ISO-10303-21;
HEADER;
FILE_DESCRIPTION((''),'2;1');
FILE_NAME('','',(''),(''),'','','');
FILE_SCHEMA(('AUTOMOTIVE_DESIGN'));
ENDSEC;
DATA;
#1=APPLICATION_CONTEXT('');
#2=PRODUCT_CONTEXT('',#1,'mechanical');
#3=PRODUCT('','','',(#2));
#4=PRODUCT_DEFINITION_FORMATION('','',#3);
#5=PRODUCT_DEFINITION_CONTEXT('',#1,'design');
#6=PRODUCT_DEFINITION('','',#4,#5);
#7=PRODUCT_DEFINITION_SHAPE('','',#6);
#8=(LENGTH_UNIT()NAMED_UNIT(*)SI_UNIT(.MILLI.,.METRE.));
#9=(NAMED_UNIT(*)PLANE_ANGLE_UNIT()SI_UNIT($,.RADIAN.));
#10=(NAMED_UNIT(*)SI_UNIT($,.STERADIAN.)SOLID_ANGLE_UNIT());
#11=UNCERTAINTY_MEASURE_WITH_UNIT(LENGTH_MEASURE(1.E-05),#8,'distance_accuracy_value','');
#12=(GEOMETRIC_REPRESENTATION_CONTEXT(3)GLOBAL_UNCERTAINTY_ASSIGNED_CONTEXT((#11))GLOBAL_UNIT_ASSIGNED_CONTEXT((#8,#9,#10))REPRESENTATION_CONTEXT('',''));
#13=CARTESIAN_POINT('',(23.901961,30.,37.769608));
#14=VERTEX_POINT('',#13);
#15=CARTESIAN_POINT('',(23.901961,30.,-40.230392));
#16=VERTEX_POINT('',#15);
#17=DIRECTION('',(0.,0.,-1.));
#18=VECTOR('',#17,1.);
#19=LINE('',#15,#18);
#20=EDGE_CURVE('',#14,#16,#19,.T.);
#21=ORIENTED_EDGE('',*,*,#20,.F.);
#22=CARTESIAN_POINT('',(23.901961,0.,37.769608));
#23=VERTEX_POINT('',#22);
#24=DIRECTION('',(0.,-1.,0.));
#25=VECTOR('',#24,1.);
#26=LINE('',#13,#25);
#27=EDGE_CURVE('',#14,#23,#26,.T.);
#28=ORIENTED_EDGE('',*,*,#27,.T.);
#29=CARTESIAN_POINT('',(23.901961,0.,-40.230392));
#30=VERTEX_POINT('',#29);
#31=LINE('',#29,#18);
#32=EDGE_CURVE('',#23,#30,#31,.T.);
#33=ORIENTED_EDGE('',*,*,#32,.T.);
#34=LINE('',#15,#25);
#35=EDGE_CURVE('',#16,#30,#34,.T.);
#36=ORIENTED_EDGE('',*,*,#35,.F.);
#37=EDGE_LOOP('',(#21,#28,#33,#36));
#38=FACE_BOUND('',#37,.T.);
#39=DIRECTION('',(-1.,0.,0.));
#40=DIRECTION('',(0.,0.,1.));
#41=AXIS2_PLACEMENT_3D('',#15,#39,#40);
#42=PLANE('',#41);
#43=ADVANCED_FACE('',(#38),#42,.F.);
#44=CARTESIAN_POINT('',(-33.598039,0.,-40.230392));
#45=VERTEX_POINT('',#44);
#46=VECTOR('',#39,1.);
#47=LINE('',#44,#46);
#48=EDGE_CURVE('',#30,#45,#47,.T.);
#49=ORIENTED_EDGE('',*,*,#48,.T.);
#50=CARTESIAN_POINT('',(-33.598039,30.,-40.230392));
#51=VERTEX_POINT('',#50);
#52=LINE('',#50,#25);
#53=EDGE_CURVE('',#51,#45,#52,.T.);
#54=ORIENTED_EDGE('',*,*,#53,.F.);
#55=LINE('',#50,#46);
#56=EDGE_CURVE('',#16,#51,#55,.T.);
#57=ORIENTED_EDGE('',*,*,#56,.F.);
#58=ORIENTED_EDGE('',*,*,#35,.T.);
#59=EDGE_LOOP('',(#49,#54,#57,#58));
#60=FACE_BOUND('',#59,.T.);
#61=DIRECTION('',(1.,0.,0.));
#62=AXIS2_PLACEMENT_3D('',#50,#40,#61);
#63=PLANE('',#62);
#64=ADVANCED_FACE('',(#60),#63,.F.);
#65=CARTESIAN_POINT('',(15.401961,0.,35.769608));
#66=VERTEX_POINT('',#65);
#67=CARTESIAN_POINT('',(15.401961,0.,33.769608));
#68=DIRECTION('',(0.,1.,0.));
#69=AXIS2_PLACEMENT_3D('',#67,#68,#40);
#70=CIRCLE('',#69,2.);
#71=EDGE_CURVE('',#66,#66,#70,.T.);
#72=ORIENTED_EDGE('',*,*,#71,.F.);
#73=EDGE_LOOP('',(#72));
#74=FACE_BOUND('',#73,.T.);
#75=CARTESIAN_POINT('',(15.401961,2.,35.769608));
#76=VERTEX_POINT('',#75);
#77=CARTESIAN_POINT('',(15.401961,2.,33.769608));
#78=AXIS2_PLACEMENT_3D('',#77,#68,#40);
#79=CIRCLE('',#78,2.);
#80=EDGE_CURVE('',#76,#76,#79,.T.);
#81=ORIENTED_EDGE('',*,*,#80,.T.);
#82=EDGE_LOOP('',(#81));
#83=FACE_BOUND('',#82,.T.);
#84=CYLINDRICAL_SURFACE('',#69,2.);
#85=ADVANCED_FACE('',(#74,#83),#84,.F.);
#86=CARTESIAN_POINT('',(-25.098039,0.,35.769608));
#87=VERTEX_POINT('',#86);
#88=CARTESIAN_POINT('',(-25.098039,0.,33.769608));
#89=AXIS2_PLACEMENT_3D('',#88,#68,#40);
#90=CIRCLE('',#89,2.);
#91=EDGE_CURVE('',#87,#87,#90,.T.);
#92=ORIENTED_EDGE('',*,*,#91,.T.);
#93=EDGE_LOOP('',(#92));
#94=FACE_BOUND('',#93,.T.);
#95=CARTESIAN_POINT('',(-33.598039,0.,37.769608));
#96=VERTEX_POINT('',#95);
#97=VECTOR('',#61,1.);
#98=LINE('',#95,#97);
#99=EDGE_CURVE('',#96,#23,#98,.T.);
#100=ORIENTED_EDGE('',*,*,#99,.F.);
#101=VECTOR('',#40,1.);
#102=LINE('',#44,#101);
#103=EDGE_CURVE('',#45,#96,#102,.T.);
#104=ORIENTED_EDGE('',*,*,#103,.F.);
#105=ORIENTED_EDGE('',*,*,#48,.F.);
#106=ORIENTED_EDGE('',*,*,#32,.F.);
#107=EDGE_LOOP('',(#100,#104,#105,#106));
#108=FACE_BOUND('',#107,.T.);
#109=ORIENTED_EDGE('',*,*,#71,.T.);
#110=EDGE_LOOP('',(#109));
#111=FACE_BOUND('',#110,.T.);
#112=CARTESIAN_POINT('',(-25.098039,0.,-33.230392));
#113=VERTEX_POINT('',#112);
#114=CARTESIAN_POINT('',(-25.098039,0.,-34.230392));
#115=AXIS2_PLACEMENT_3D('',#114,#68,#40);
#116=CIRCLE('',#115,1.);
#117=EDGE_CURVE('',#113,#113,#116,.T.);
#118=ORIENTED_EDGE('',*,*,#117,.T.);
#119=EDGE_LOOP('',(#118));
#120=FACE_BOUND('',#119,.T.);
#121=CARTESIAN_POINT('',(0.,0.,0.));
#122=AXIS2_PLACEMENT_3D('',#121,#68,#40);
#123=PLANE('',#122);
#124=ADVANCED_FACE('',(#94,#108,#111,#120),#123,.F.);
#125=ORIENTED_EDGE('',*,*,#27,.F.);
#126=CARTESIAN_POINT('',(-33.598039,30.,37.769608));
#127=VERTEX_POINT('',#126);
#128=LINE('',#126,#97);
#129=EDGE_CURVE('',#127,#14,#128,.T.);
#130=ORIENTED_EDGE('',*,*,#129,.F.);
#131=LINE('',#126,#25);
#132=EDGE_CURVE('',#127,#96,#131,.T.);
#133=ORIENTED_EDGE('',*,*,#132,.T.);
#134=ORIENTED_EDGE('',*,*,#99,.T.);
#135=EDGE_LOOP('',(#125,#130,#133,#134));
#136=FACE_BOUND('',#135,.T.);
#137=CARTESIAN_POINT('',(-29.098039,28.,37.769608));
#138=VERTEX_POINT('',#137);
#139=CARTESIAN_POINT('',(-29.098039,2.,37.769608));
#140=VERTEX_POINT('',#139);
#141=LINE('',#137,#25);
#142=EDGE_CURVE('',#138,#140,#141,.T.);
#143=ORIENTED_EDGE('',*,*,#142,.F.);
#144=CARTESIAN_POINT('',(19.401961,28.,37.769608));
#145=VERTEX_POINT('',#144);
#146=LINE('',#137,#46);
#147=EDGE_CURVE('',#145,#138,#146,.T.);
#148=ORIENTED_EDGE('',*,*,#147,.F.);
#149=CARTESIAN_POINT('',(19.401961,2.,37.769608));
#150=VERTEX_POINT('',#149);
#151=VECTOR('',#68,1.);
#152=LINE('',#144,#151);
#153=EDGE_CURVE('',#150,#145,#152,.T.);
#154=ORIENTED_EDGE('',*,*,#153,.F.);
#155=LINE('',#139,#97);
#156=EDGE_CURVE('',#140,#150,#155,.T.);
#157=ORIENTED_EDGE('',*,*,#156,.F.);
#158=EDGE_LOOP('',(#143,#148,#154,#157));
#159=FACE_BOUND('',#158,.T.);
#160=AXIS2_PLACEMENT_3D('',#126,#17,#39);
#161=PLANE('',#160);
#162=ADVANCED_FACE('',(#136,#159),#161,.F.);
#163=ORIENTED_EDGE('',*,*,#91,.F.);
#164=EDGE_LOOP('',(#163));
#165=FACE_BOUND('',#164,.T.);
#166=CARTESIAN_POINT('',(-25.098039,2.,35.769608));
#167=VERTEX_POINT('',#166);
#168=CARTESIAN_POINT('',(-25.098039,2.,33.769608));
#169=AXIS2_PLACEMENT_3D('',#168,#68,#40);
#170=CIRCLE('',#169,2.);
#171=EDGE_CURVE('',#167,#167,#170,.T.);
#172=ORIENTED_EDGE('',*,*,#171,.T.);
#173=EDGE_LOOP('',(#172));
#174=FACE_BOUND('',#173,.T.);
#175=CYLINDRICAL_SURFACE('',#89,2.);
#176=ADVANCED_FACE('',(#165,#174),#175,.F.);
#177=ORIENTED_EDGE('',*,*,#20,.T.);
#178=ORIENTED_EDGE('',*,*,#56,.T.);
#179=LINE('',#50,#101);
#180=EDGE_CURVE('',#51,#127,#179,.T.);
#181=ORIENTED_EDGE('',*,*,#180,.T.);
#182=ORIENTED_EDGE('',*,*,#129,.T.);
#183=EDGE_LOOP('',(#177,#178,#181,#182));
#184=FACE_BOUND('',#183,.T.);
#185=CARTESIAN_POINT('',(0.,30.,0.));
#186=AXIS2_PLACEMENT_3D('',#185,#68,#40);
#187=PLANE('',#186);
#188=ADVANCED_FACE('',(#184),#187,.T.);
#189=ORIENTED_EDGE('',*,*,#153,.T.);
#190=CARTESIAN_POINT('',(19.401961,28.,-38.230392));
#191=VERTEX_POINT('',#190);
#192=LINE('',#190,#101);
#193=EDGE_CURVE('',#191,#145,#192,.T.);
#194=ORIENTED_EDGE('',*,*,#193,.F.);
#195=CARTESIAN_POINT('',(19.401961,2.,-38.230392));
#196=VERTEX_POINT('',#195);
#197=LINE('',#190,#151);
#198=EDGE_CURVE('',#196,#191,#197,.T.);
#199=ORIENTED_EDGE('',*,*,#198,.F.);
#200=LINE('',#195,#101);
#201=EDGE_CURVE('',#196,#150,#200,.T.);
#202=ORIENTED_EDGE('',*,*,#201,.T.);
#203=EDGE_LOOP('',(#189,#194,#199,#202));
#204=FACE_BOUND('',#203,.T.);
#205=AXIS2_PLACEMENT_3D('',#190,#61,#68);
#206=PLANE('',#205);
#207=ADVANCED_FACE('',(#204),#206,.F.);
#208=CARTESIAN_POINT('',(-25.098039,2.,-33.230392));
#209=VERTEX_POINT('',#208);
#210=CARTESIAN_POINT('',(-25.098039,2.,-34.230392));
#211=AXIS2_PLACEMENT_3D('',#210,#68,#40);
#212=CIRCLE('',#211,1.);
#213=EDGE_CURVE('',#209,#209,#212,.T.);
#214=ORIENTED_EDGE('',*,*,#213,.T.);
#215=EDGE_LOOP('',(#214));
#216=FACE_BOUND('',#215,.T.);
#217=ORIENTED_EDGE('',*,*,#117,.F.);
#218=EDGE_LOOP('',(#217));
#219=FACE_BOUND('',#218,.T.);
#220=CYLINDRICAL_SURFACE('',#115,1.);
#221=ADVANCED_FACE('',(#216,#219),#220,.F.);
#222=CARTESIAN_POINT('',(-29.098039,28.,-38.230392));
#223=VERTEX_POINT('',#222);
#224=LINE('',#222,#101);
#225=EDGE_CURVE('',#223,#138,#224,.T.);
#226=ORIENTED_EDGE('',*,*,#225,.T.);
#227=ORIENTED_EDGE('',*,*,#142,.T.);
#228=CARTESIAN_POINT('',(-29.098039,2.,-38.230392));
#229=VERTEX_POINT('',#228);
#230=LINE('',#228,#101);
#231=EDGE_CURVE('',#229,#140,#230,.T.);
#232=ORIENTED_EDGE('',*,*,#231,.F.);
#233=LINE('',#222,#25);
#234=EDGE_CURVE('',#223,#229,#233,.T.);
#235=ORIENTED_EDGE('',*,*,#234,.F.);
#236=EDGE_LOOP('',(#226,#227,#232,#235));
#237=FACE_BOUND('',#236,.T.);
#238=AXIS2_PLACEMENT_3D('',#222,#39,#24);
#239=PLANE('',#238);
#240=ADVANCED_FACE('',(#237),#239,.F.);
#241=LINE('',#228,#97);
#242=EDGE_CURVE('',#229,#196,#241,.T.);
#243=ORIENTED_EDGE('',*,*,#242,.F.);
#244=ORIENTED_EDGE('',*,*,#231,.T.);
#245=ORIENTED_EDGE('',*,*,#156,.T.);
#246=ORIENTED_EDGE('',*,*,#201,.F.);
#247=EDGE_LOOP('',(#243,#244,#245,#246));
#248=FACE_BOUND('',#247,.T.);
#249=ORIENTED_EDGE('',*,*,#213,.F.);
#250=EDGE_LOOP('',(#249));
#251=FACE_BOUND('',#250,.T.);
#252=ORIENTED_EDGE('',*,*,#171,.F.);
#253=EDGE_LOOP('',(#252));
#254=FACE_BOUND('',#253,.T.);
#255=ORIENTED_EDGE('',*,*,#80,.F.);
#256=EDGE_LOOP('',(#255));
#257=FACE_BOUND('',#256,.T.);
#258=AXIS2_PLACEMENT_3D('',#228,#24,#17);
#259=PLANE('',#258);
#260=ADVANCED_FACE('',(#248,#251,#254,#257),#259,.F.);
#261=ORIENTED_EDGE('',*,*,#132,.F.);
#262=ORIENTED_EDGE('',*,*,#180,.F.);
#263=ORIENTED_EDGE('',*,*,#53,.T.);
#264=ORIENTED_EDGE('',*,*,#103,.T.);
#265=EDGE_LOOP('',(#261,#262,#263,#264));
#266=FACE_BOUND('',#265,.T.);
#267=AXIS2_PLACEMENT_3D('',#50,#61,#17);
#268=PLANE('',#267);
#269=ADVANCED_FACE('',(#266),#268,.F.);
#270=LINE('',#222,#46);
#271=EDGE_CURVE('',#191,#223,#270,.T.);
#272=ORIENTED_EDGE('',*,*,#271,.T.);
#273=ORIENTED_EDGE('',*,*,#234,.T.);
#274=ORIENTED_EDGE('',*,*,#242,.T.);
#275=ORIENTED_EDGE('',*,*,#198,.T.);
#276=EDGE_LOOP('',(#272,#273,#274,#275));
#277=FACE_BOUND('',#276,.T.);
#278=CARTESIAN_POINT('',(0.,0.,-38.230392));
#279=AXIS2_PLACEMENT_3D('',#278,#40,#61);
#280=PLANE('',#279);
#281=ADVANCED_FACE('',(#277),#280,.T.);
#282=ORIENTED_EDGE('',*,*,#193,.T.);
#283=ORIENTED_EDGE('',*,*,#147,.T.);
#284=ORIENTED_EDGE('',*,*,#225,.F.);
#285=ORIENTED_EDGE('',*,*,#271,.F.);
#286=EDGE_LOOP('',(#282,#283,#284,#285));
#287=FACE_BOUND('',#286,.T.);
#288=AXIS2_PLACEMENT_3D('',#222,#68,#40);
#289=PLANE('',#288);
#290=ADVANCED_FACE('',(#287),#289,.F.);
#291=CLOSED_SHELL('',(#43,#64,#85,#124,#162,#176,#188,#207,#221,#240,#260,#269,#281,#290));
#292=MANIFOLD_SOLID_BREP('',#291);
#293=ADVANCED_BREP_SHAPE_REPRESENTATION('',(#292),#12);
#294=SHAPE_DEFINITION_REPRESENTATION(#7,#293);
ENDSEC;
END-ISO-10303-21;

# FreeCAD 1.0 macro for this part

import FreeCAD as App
import Part
import Sketcher
from FreeCAD import Vector

doc = App.newDocument("Part")
body = doc.addObject("PartDesign::Body", "Body")

sketch1 = body.newObject("Sketcher::SketchObject", "Sketch")
sketch1.AttachmentSupport = (doc.getObject("XZ_Plane"), [""])
sketch1.MapMode = "FlatFace"
sketch1.addGeometry(Part.LineSegment(Vector(-33.598039, -40.230392, 0), Vector(-33.598039, 37.769608, 0)), False)
sketch1.addGeometry(Part.LineSegment(Vector(-33.598039, 37.769608, 0), Vector(23.901961, 37.769608, 0)), False)
sketch1.addGeometry(Part.LineSegment(Vector(23.901961, 37.769608, 0), Vector(23.901961, -40.230392, 0)), False)
sketch1.addGeometry(Part.LineSegment(Vector(23.901961, -40.230392, 0), Vector(-33.598039, -40.230392, 0)), False)
sketch1.addConstraint(Sketcher.Constraint("Coincident", 0, 2, 1, 1))
sketch1.addConstraint(Sketcher.Constraint("Coincident", 1, 2, 2, 1))
sketch1.addConstraint(Sketcher.Constraint("Coincident", 2, 2, 3, 1))
sketch1.addConstraint(Sketcher.Constraint("Coincident", 3, 2, 0, 1))
sketch1.addConstraint(Sketcher.Constraint("Vertical", 0))
sketch1.addConstraint(Sketcher.Constraint("Horizontal", 1))
sketch1.addConstraint(Sketcher.Constraint("Vertical", 2))
sketch1.addConstraint(Sketcher.Constraint("Horizontal", 3))
sketch1.addConstraint(Sketcher.Constraint("DistanceY", 0, 1, 0, 2, 78.0))
sketch1.addConstraint(Sketcher.Constraint("DistanceX", 1, 1, 1, 2, 57.5))
sketch1.addConstraint(Sketcher.Constraint("DistanceX", 0, 2, -1, 1, 33.598039))
sketch1.addConstraint(Sketcher.Constraint("DistanceY", -1, 1, 0, 2, 37.769608))
pad1 = body.newObject("PartDesign::Pad", "Pad")
pad1.Profile = sketch1
pad1.Length = 30
pad1.Reversed = True

sketch2 = body.newObject("Sketcher::SketchObject", "Sketch001")
sketch2.AttachmentSupport = (doc.getObject("XY_Plane"), [""])
sketch2.MapMode = "FlatFace"
sketch2.AttachmentOffset = App.Placement(Vector(0, 0, 37.769608), App.Rotation())
sketch2.addGeometry(Part.LineSegment(Vector(-29.098039, 28, 0), Vector(-29.098039, 2, 0)), False)
sketch2.addGeometry(Part.LineSegment(Vector(-29.098039, 2, 0), Vector(19.401961, 2, 0)), False)
sketch2.addGeometry(Part.LineSegment(Vector(19.401961, 2, 0), Vector(19.401961, 28, 0)), False)
sketch2.addGeometry(Part.LineSegment(Vector(19.401961, 28, 0), Vector(-29.098039, 28, 0)), False)
sketch2.addConstraint(Sketcher.Constraint("Coincident", 0, 2, 1, 1))
sketch2.addConstraint(Sketcher.Constraint("Coincident", 1, 2, 2, 1))
sketch2.addConstraint(Sketcher.Constraint("Coincident", 2, 2, 3, 1))
sketch2.addConstraint(Sketcher.Constraint("Coincident", 3, 2, 0, 1))
sketch2.addConstraint(Sketcher.Constraint("Vertical", 0))
sketch2.addConstraint(Sketcher.Constraint("Horizontal", 1))
sketch2.addConstraint(Sketcher.Constraint("Vertical", 2))
sketch2.addConstraint(Sketcher.Constraint("Horizontal", 3))
sketch2.addConstraint(Sketcher.Constraint("DistanceY", 0, 2, 0, 1, 26.0))
sketch2.addConstraint(Sketcher.Constraint("DistanceX", 1, 1, 1, 2, 48.5))
sketch2.addConstraint(Sketcher.Constraint("DistanceY", -1, 1, 0, 2, 2.0))
sketch2.addConstraint(Sketcher.Constraint("DistanceX", 0, 2, -1, 1, 29.098039))
pocket1 = body.newObject("PartDesign::Pocket", "Pocket")
pocket1.Profile = sketch2
pocket1.Length = 76

sketch3 = body.newObject("Sketcher::SketchObject", "Sketch002")
sketch3.AttachmentSupport = (doc.getObject("XZ_Plane"), [""])
sketch3.MapMode = "FlatFace"
sketch3.AttachmentOffset = App.Placement(Vector(0, 0, -2), App.Rotation())
sketch3.addGeometry(Part.Circle(Vector(15.401961, 33.769608, 0), Vector(0, 0, 1), 2), False)
sketch3.addGeometry(Part.Circle(Vector(-25.098039, -34.230392, 0), Vector(0, 0, 1), 1), False)
sketch3.addGeometry(Part.Circle(Vector(-25.098039, 33.769608, 0), Vector(0, 0, 1), 2), False)
sketch3.addConstraint(Sketcher.Constraint("Equal", 0, 2))
sketch3.addConstraint(Sketcher.Constraint("Horizontal", 0, 3, 2, 3))
sketch3.addConstraint(Sketcher.Constraint("Vertical", 1, 3, 2, 3))
sketch3.addConstraint(Sketcher.Constraint("Diameter", 0, 4.0))
sketch3.addConstraint(Sketcher.Constraint("Diameter", 1, 2.0))
sketch3.addConstraint(Sketcher.Constraint("DistanceY", 1, 3, 0, 3, 68.0))
sketch3.addConstraint(Sketcher.Constraint("DistanceX", 1, 3, 0, 3, 40.5))
sketch3.addConstraint(Sketcher.Constraint("DistanceX", -1, 1, 0, 3, 15.401961))
sketch3.addConstraint(Sketcher.Constraint("DistanceY", -1, 1, 0, 3, 33.769608))
pocket2 = body.newObject("PartDesign::Pocket", "Pocket001")
pocket2.Profile = sketch3
pocket2.Type = "ThroughAll"
pocket2.Reversed = True

doc.recompute()
